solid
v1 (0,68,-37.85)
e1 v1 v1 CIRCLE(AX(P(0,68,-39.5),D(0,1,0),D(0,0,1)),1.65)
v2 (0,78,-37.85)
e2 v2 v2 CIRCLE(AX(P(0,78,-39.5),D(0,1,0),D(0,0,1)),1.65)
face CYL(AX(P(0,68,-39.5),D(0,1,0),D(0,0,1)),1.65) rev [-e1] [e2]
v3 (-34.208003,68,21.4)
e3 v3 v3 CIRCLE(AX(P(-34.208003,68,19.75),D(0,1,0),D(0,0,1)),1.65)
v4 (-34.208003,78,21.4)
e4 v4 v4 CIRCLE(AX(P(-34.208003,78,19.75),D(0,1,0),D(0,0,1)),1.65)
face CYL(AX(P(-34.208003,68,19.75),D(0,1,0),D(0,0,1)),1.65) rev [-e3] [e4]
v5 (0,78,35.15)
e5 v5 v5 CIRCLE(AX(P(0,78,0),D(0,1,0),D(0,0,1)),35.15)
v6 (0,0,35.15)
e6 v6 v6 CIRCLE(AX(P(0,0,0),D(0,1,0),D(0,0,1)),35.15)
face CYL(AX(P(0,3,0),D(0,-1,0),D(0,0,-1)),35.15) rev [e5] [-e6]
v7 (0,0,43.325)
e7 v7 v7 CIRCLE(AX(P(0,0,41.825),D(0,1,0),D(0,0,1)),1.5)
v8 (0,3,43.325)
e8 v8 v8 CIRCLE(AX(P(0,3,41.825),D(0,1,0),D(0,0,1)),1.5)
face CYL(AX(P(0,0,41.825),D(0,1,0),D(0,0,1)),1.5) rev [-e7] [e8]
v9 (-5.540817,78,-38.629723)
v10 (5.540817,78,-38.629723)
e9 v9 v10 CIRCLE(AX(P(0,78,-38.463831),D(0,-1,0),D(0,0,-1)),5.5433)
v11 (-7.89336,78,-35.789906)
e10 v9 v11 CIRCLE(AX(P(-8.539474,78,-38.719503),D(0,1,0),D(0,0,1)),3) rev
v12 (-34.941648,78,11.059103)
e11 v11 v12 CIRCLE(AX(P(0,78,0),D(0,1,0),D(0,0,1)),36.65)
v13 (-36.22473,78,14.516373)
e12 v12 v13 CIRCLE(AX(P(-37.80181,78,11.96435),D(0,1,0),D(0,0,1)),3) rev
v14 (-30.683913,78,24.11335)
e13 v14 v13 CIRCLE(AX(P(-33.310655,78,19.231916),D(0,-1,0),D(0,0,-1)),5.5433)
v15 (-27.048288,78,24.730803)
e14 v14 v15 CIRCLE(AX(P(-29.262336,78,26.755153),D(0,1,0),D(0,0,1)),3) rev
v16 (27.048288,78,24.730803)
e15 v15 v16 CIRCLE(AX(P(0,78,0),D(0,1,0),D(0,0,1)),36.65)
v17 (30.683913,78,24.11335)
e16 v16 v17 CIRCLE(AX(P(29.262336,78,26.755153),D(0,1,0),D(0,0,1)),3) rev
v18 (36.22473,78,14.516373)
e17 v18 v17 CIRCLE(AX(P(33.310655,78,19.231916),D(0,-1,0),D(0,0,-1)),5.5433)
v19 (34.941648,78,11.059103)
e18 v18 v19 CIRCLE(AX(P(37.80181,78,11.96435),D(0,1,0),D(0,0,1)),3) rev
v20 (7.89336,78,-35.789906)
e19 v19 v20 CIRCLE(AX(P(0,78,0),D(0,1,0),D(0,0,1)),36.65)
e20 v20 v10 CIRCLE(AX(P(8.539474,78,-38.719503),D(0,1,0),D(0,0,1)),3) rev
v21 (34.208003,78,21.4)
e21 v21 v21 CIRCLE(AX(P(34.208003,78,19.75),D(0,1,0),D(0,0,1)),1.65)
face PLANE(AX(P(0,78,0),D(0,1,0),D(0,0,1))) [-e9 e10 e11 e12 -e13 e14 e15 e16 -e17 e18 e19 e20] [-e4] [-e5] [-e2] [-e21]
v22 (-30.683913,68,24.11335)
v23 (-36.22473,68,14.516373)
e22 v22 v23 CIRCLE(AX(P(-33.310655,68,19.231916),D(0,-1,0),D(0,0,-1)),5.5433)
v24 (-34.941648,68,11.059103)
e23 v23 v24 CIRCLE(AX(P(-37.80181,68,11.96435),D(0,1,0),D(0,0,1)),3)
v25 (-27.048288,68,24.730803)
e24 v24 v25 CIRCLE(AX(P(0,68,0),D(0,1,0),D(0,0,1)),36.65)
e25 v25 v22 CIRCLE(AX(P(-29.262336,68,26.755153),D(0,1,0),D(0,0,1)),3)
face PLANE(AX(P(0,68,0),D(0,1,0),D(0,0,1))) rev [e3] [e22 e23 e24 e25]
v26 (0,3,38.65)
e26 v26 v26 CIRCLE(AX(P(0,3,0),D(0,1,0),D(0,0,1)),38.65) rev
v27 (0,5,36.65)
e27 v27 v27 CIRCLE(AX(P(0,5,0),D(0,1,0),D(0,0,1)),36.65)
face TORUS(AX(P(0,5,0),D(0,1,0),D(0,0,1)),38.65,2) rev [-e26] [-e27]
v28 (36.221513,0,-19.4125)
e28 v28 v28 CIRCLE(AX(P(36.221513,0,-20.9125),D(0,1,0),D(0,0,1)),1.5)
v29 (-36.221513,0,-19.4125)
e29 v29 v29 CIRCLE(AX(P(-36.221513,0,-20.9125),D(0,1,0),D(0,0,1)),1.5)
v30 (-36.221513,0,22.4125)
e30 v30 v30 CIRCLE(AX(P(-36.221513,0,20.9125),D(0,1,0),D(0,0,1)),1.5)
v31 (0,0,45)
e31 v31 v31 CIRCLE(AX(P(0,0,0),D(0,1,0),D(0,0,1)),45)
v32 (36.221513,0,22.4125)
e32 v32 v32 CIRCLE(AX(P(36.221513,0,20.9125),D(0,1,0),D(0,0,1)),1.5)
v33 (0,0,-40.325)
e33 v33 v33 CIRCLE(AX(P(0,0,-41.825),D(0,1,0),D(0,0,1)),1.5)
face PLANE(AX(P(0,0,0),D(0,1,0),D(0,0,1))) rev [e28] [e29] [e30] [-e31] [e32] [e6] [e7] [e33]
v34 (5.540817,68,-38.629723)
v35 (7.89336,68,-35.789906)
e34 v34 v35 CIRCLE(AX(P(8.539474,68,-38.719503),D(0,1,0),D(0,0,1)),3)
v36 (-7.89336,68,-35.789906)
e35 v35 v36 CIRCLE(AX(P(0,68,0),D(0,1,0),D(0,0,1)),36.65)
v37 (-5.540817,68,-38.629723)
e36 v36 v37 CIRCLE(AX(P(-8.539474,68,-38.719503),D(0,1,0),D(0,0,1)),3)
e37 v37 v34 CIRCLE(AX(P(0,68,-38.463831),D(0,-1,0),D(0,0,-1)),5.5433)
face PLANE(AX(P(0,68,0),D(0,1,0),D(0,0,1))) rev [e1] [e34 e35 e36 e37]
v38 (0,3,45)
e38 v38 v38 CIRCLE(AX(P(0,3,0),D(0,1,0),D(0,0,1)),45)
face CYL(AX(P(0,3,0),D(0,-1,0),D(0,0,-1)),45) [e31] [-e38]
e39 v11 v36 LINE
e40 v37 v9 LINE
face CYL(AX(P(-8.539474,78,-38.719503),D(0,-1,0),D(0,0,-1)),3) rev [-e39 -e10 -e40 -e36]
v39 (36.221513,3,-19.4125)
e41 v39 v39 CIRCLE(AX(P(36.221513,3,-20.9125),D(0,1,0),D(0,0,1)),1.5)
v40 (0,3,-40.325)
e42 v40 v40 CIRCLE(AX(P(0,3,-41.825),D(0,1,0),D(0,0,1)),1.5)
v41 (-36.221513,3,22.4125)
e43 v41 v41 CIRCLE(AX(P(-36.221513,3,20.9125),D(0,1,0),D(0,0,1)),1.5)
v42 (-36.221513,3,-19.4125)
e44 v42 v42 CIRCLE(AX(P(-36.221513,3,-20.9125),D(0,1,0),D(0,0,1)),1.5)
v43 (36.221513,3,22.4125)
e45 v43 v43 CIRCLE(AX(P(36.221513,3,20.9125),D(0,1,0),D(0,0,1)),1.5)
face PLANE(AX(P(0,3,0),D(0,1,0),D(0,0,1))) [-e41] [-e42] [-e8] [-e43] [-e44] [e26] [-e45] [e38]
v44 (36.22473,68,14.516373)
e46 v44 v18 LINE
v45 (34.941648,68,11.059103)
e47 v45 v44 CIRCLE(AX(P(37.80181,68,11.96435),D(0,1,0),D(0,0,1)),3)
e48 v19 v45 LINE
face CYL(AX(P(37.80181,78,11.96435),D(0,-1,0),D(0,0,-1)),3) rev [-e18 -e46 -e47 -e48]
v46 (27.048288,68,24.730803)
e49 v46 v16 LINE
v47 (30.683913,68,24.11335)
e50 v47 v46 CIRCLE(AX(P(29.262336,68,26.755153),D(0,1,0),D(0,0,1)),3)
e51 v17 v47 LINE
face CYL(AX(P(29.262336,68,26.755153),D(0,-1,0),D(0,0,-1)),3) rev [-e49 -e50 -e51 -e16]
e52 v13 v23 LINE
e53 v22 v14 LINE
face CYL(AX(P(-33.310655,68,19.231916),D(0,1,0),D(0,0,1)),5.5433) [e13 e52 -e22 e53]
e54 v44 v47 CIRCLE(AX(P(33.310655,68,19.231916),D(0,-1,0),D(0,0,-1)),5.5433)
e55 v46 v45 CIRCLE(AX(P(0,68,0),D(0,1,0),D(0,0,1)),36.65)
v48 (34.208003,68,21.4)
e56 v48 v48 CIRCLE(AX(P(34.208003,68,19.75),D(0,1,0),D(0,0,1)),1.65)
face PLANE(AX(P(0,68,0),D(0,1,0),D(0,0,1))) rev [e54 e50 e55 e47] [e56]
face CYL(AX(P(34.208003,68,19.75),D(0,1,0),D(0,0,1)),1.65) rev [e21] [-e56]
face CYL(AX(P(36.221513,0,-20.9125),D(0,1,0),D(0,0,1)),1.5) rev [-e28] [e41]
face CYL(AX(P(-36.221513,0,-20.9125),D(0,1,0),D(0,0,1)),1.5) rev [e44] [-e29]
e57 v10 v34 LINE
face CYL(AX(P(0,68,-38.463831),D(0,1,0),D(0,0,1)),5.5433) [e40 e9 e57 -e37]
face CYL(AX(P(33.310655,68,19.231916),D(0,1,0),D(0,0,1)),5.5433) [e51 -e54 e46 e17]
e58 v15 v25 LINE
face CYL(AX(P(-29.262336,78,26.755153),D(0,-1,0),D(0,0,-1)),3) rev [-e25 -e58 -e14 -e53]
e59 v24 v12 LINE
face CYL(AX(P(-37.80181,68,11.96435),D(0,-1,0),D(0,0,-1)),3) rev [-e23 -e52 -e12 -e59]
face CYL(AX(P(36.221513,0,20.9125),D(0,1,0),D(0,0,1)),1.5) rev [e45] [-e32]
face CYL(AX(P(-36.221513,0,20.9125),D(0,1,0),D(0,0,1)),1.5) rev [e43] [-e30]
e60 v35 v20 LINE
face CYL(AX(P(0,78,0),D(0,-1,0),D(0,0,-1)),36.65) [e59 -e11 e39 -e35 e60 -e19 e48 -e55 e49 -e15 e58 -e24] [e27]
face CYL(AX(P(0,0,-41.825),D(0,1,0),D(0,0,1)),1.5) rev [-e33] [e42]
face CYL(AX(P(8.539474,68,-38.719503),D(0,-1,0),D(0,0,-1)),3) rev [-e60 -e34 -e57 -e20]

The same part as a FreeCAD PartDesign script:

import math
import FreeCAD as App
import Part
import Sketcher


def edges_at(feature, points):
    """Names of the edges that pass closest to the given points."""
    edges = feature.Shape.Edges
    near = lambda p: min(range(len(edges)), key=lambda i: edges[i].distToShape(Part.Vertex(*p))[0])
    return sorted({f"Edge{near(p) + 1}" for p in points})

doc = App.newDocument("Part")
body = doc.addObject("PartDesign::Body", "Body")

# Sketch on XZ plane
sketch1 = body.newObject("Sketcher::SketchObject", "Sketch")
sketch1.AttachmentSupport = (doc.getObject("XZ_Plane"), [""])
sketch1.MapMode = "FlatFace"
sketch1.addGeometry([
    Part.Circle(App.Vector(0, 0, 0), App.Vector(0, 0, 1), 45),
    Part.Circle(App.Vector(0, 0, 0), App.Vector(0, 0, 1), 35.15),
], False)
sketch1.addConstraint([
    Sketcher.Constraint("Coincident", 0, 3, -1, 1),
    Sketcher.Constraint("Coincident", 1, 3, -1, 1),
    Sketcher.Constraint("Diameter", 0, 90.0),
    Sketcher.Constraint("Diameter", 1, 70.3),
])
pad1 = body.newObject("PartDesign::Pad", "Pad")
pad1.Profile = sketch1
pad1.Length = 3
pad1.Reversed = True

# Sketch on XZ plane
sketch2 = body.newObject("Sketcher::SketchObject", "Sketch001")
sketch2.AttachmentSupport = (doc.getObject("XZ_Plane"), [""])
sketch2.MapMode = "FlatFace"
sketch2.AttachmentOffset = App.Placement(App.Vector(0, 0, -3), App.Rotation())
sketch2.addGeometry([
    Part.Circle(App.Vector(0, 0, 0), App.Vector(0, 0, 1), 36.65),
    Part.Circle(App.Vector(0, 0, 0), App.Vector(0, 0, 1), 35.15),
], False)
sketch2.addConstraint([
    Sketcher.Constraint("Coincident", 0, 3, -1, 1),
    Sketcher.Constraint("Coincident", 1, 3, -1, 1),
    Sketcher.Constraint("Diameter", 0, 73.3),
    Sketcher.Constraint("Diameter", 1, 70.3),
])
pad2 = body.newObject("PartDesign::Pad", "Pad001")
pad2.Profile = sketch2
pad2.Length = 75
pad2.Reversed = True
doc.recompute()

fillet = body.newObject("PartDesign::Fillet", "Fillet")
fillet.Base = (pad2, edges_at(pad2, [(0, 3, -36.65)]))
fillet.Radius = 2

# Sketch on XZ plane
sketch3 = body.newObject("Sketcher::SketchObject", "Sketch002")
sketch3.AttachmentSupport = (doc.getObject("XZ_Plane"), [""])
sketch3.MapMode = "FlatFace"
sketch3.AttachmentOffset = App.Placement(App.Vector(0, 0, -3), App.Rotation())
sketch3.addGeometry([
    Part.Circle(App.Vector(0, -41.825, 0), App.Vector(0, 0, 1), 1.5),  # 0
    Part.Circle(App.Vector(36.221513, -20.9125, 0), App.Vector(0, 0, 1), 1.5),  # 1
    Part.Circle(App.Vector(36.221513, 20.9125, 0), App.Vector(0, 0, 1), 1.5),  # 2
    Part.Circle(App.Vector(0, 41.825, 0), App.Vector(0, 0, 1), 1.5),  # 3
    Part.Circle(App.Vector(-36.221513, 20.9125, 0), App.Vector(0, 0, 1), 1.5),  # 4
    Part.Circle(App.Vector(-36.221513, -20.9125, 0), App.Vector(0, 0, 1), 1.5),  # 5
], False)
sketch3.addConstraint([
    Sketcher.Constraint("Equal", 0, 1),
    Sketcher.Constraint("Equal", 1, 2),
    Sketcher.Constraint("Equal", 2, 3),
    Sketcher.Constraint("Equal", 3, 4),
    Sketcher.Constraint("Equal", 4, 5),
    Sketcher.Constraint("Symmetric", 0, 3, 3, 3, -1, 1),
    Sketcher.Constraint("Symmetric", 1, 3, 4, 3, -1, 1),
    Sketcher.Constraint("Symmetric", 2, 3, 5, 3, -1, 1),
    Sketcher.Constraint("Symmetric", 2, 3, 4, 3, -2),
    Sketcher.Constraint("PointOnObject", 0, 3, -2),
    Sketcher.Constraint("Diameter", 0, 3.0),
    Sketcher.Constraint("DistanceY", 0, 3, 3, 3, 83.65),
    Sketcher.Constraint("DistanceY", 1, 3, 2, 3, 41.825),
    Sketcher.Constraint("DistanceX", -1, 1, 1, 3, 36.221513),
])
pocket1 = body.newObject("PartDesign::Pocket", "Pocket")
pocket1.Profile = sketch3
pocket1.Type = "ThroughAll"
pocket1.Reversed = True

# Sketch on XZ plane
sketch4 = body.newObject("Sketcher::SketchObject", "Sketch003")
sketch4.AttachmentSupport = (doc.getObject("XZ_Plane"), [""])
sketch4.MapMode = "FlatFace"
sketch4.AttachmentOffset = App.Placement(App.Vector(0, 0, -68), App.Rotation())
sketch4.addGeometry([
    Part.ArcOfCircle(Part.Circle(App.Vector(0, 0, 0), App.Vector(0, 0, 1), 36.65), math.radians(-98), math.radians(-82)),  # 0
    Part.ArcOfCircle(Part.Circle(App.Vector(0, -38.463831, 0), App.Vector(0, 0, 1), 5.5433), math.radians(156.948716), math.radians(383.051284)),  # 1
    Part.ArcOfCircle(Part.Circle(App.Vector(33.310655, 19.231916, 0), App.Vector(0, 0, 1), 5.5433), math.radians(-83.051284), math.radians(143.051284)),  # 2
    Part.ArcOfCircle(Part.Circle(App.Vector(0, 0, 0), App.Vector(0, 0, 1), 36.65), math.radians(22), math.radians(38)),  # 3
    Part.ArcOfCircle(Part.Circle(App.Vector(-33.310655, 19.231916, 0), App.Vector(0, 0, 1), 5.5433), math.radians(36.948716), math.radians(263.051284)),  # 4
    Part.ArcOfCircle(Part.Circle(App.Vector(0, 0, 0), App.Vector(0, 0, 1), 36.65), math.radians(142), math.radians(158)),  # 5
], False)
sketch4.addConstraint([
    Sketcher.Constraint("Coincident", 0, 1, 1, 1),
    Sketcher.Constraint("Coincident", 1, 2, 0, 2),
    Sketcher.Constraint("Coincident", 2, 1, 3, 1),
    Sketcher.Constraint("Coincident", 3, 2, 2, 2),
    Sketcher.Constraint("Coincident", 4, 1, 5, 1),
    Sketcher.Constraint("Coincident", 5, 2, 4, 2),
    Sketcher.Constraint("Coincident", 0, 3, -1, 1),
    Sketcher.Constraint("Coincident", 3, 3, -1, 1),
    Sketcher.Constraint("Coincident", 5, 3, -1, 1),
    Sketcher.Constraint("Equal", 1, 2),
    Sketcher.Constraint("Equal", 0, 3),
    Sketcher.Constraint("Equal", 2, 4),
    Sketcher.Constraint("Equal", 3, 5),
    Sketcher.Constraint("Symmetric", 2, 3, 4, 3, -2),
    Sketcher.Constraint("PointOnObject", 1, 3, -2),
    Sketcher.Constraint("Radius", 0, 36.65),
    Sketcher.Constraint("Radius", 1, 5.5433),
    Sketcher.Constraint("DistanceY", 1, 3, -1, 1, 38.463831),
    Sketcher.Constraint("DistanceX", -1, 1, 2, 1, 33.981288),
    Sketcher.Constraint("DistanceX", 4, 3, 2, 3, 66.62131),
])
pad3 = body.newObject("PartDesign::Pad", "Pad002")
pad3.Profile = sketch4
pad3.Length = 10
pad3.Reversed = True

# Sketch on XZ plane
sketch5 = body.newObject("Sketcher::SketchObject", "Sketch004")
sketch5.AttachmentSupport = (doc.getObject("XZ_Plane"), [""])
sketch5.MapMode = "FlatFace"
sketch5.AttachmentOffset = App.Placement(App.Vector(0, 0, -78), App.Rotation())
sketch5.addGeometry([
    Part.Circle(App.Vector(0, -39.5, 0), App.Vector(0, 0, 1), 1.65),
    Part.Circle(App.Vector(34.208003, 19.75, 0), App.Vector(0, 0, 1), 1.65),
    Part.Circle(App.Vector(-34.208003, 19.75, 0), App.Vector(0, 0, 1), 1.65),
], False)
sketch5.addConstraint([
    Sketcher.Constraint("Equal", 0, 1),
    Sketcher.Constraint("Equal", 1, 2),
    Sketcher.Constraint("Symmetric", 1, 3, 2, 3, -2),
    Sketcher.Constraint("PointOnObject", 0, 3, -2),
    Sketcher.Constraint("Diameter", 0, 3.3),
    Sketcher.Constraint("DistanceY", 0, 3, -1, 1, 39.5),
    Sketcher.Constraint("DistanceY", -1, 1, 1, 3, 19.75),
    Sketcher.Constraint("DistanceX", -1, 1, 1, 3, 34.208003),
])
pocket2 = body.newObject("PartDesign::Pocket", "Pocket001")
pocket2.Profile = sketch5
pocket2.Length = 10
pocket2.Reversed = True
doc.recompute()

fillet2 = body.newObject("PartDesign::Fillet", "Fillet001")
fillet2.Base = (pocket2, edges_at(pocket2, [
    (28.881, 73, 22.564),
    (33.981, 73, 13.729),
    (-33.981, 73, 13.729),
    (-28.881, 73, 22.564),
    (5.101, 73, -36.293),
    (-5.101, 73, -36.293),
]))
fillet2.Radius = 3

doc.recompute()
